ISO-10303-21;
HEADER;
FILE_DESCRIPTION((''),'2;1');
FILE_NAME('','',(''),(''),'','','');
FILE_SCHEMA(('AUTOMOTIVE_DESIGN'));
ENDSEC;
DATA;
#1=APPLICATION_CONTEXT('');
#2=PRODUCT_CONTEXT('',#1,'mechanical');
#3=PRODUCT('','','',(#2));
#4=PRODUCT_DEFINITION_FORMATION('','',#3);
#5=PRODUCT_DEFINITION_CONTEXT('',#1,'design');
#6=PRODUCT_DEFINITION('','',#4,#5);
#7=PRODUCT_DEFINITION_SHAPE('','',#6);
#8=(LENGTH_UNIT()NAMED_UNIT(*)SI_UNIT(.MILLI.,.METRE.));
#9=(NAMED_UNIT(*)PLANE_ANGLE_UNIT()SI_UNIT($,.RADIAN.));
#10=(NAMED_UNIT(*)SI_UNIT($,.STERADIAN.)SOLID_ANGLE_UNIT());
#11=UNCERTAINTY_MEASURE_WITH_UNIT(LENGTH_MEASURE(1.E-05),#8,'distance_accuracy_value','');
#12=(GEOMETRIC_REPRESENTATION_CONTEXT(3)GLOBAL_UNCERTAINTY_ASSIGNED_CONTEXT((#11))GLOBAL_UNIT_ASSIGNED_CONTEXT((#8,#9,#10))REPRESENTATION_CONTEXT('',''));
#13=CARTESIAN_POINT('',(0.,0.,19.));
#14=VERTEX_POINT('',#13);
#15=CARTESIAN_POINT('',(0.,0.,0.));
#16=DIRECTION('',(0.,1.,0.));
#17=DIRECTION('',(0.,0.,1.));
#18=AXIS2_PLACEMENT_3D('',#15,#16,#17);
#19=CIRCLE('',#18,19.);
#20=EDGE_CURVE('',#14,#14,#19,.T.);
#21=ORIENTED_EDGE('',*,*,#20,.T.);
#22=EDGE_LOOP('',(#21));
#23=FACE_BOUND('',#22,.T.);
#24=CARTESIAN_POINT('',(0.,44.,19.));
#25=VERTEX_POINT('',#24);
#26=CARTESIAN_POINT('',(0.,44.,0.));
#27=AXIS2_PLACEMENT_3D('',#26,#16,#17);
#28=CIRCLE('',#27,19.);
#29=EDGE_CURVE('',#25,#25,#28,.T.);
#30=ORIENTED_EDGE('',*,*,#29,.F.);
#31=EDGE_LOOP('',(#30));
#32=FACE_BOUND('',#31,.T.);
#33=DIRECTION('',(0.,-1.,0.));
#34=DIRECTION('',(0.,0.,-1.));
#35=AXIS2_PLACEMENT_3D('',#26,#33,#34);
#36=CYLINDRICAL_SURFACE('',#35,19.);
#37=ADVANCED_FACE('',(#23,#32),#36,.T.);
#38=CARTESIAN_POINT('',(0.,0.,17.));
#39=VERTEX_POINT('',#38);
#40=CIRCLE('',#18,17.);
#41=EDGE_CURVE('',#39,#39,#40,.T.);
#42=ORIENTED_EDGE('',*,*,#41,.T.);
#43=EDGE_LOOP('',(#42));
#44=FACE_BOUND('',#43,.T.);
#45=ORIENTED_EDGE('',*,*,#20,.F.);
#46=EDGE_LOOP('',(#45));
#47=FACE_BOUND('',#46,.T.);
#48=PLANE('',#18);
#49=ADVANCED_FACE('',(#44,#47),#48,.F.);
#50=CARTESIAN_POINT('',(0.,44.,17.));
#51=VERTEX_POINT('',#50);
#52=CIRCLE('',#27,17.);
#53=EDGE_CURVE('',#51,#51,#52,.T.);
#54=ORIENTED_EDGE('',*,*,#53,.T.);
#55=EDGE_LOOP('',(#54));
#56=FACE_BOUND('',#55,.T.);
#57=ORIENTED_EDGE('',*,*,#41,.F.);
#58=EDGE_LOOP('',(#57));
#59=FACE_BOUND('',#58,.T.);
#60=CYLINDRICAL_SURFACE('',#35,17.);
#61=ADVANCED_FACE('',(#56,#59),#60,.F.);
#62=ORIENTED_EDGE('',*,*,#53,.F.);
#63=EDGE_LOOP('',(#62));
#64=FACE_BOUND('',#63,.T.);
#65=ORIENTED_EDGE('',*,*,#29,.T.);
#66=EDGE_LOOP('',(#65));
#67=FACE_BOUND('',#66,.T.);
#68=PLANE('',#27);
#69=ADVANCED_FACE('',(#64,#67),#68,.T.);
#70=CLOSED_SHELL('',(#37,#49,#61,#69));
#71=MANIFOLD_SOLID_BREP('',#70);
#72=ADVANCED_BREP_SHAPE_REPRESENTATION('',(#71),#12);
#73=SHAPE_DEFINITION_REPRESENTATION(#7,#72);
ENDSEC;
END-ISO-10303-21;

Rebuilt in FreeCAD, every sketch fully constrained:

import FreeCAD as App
import Part
import Sketcher
from FreeCAD import Vector

doc = App.newDocument("Part")
body = doc.addObject("PartDesign::Body", "Body")

sketch1 = body.newObject("Sketcher::SketchObject", "Sketch")
sketch1.AttachmentSupport = (doc.getObject("XZ_Plane"), [""])
sketch1.MapMode = "FlatFace"
sketch1.addGeometry([
    Part.Circle(Vector(0, 0, 0), Vector(0, 0, 1), 19),
    Part.Circle(Vector(0, 0, 0), Vector(0, 0, 1), 17),
], False)
sketch1.addConstraint([
    Sketcher.Constraint("Coincident", 0, 3, -1, 1),
    Sketcher.Constraint("Coincident", 1, 3, -1, 1),
    Sketcher.Constraint("Diameter", 0, 38.0),
    Sketcher.Constraint("Diameter", 1, 34.0),
])
pad1 = body.newObject("PartDesign::Pad", "Pad")
pad1.Profile = sketch1
pad1.Length = 44
pad1.Reversed = True

doc.recompute()
